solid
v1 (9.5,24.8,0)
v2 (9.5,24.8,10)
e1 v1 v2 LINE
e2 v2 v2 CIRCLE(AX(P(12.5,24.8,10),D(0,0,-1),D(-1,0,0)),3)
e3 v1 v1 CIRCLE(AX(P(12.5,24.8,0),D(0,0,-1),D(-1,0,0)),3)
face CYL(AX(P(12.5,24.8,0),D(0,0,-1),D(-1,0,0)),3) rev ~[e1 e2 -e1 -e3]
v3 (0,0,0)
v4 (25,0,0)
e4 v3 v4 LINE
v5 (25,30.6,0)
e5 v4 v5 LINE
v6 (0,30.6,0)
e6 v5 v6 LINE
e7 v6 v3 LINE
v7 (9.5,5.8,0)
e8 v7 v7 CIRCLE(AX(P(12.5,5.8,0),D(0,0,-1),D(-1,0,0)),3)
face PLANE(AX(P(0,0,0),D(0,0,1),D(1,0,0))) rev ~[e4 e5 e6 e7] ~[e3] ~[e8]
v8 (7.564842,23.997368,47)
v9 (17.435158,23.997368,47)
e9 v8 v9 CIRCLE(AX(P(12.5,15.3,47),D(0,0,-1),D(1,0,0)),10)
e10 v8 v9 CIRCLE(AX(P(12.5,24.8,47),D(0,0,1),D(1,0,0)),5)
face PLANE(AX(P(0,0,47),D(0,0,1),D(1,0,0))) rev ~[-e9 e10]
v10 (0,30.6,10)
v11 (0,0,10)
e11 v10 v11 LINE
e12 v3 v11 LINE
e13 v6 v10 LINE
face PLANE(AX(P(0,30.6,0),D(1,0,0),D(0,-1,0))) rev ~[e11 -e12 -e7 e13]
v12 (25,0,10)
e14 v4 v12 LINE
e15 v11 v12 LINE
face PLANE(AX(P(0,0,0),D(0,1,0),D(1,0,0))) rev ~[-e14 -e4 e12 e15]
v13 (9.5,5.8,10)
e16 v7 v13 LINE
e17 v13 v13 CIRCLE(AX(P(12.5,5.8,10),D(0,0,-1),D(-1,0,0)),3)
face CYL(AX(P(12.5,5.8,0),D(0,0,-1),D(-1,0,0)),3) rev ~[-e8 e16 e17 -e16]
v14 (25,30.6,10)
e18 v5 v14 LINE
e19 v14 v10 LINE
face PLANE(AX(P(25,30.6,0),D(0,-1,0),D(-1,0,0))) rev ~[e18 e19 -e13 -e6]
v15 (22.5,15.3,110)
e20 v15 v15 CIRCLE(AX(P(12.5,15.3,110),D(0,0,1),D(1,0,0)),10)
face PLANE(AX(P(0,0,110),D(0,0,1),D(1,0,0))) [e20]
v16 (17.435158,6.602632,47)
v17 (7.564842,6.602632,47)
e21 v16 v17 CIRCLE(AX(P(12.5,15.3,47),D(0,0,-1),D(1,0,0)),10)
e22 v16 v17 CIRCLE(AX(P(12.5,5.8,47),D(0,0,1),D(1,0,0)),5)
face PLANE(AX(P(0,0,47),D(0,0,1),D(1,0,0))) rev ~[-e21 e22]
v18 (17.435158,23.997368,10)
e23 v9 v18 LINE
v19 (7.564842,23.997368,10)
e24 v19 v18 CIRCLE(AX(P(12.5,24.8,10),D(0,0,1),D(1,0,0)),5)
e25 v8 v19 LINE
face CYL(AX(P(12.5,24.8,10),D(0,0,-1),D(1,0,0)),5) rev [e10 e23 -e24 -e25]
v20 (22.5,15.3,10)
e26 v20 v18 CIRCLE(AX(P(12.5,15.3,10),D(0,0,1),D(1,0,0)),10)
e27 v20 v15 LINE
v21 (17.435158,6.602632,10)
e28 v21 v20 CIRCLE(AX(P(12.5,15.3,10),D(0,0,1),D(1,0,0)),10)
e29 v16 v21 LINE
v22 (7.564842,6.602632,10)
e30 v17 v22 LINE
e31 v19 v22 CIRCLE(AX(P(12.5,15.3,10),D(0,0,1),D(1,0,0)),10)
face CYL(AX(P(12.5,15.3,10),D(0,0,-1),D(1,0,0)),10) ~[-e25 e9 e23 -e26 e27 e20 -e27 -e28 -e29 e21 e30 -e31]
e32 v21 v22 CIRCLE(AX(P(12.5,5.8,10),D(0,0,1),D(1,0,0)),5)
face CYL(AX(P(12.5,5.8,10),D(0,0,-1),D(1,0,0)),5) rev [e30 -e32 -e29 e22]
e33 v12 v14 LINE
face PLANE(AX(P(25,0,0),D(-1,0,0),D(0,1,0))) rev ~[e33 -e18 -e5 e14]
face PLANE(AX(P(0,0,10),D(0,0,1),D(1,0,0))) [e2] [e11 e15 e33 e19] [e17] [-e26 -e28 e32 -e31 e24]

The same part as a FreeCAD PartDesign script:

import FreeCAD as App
import Part
import Sketcher
Q = App.Units.Quantity


def add_polygon(sketch, points):
    """Adds a closed chain of lines whose ends are joined by coincident constraints."""
    first, n = sketch.GeometryCount, len(points)
    for a, b in zip(points, points[1:] + points[:1]):
        sketch.addGeometry(Part.LineSegment(App.Vector(*a, 0), App.Vector(*b, 0)), False)
    for i in range(n):
        sketch.addConstraint(Sketcher.Constraint("Coincident", first + i, 2, first + (i + 1) % n, 1))

doc = App.newDocument("Part")
body = doc.addObject("PartDesign::Body", "Body")

# Sketch on XY plane
sketch1 = doc.addObject("Sketcher::SketchObject", "Sketch")
body.addObject(sketch1)
sketch1.AttachmentSupport = (doc.XY_Plane, [""])
sketch1.MapMode = "FlatFace"
add_polygon(sketch1, [(0, 30.6), (0, 0), (25, 0), (25, 30.6)])  # lines 0-3
sketch1.addConstraint([
    Sketcher.Constraint("Vertical", 0),
    Sketcher.Constraint("Horizontal", 1),
    Sketcher.Constraint("Vertical", 2),
    Sketcher.Constraint("Horizontal", 3),
    Sketcher.Constraint("Coincident", 0, 2, -1, 1),
    Sketcher.Constraint("DistanceX", 1, 1, 1, 2, Q("25 mm")),
    Sketcher.Constraint("DistanceY", 0, 2, 0, 1, Q("30.6 mm")),
])
pad1 = doc.addObject("PartDesign::Pad", "Pad")
body.addObject(pad1)
pad1.Profile = sketch1
pad1.Length = 10

# Sketch on XY plane
sketch2 = doc.addObject("Sketcher::SketchObject", "Sketch001")
body.addObject(sketch2)
sketch2.AttachmentSupport = (doc.XY_Plane, [""])
sketch2.MapMode = "FlatFace"
sketch2.AttachmentOffset = App.Placement(App.Vector(0, 0, 10), App.Rotation())
sketch2.addGeometry(Part.Circle(App.Vector(12.5, 15.3, 0), App.Vector(0, 0, 1), 10), False)
sketch2.addConstraint([
    Sketcher.Constraint("Diameter", 0, Q("20 mm")),
    Sketcher.Constraint("DistanceX", -1, 1, 0, 3, Q("12.5 mm")),
    Sketcher.Constraint("DistanceY", -1, 1, 0, 3, Q("15.3 mm")),
])
pad2 = doc.addObject("PartDesign::Pad", "Pad001")
body.addObject(pad2)
pad2.Profile = sketch2
pad2.Length = 100

# Sketch on XY plane
sketch3 = doc.addObject("Sketcher::SketchObject", "Sketch002")
body.addObject(sketch3)
sketch3.AttachmentSupport = (doc.XY_Plane, [""])
sketch3.MapMode = "FlatFace"
sketch3.addGeometry([
    Part.Circle(App.Vector(12.5, 5.8, 0), App.Vector(0, 0, 1), 3),
    Part.Circle(App.Vector(12.5, 24.8, 0), App.Vector(0, 0, 1), 3),
], False)
sketch3.addConstraint([
    Sketcher.Constraint("Equal", 0, 1),
    Sketcher.Constraint("Vertical", 0, 3, 1, 3),
    Sketcher.Constraint("Diameter", 0, Q("6 mm")),
    Sketcher.Constraint("DistanceY", 0, 3, 1, 3, Q("19 mm")),
    Sketcher.Constraint("DistanceX", -1, 1, 0, 3, Q("12.5 mm")),
    Sketcher.Constraint("DistanceY", -1, 1, 0, 3, Q("5.8 mm")),
])
pocket1 = doc.addObject("PartDesign::Pocket", "Pocket")
body.addObject(pocket1)
pocket1.Profile = sketch3
pocket1.Length = 20
pocket1.Reversed = True

# Sketch on XY plane
sketch4 = doc.addObject("Sketcher::SketchObject", "Sketch003")
body.addObject(sketch4)
sketch4.AttachmentSupport = (doc.XY_Plane, [""])
sketch4.MapMode = "FlatFace"
sketch4.AttachmentOffset = App.Placement(App.Vector(0, 0, 10), App.Rotation())
sketch4.addGeometry([
    Part.Circle(App.Vector(12.5, 5.8, 0), App.Vector(0, 0, 1), 5),
    Part.Circle(App.Vector(12.5, 24.8, 0), App.Vector(0, 0, 1), 5),
], False)
sketch4.addConstraint([
    Sketcher.Constraint("Equal", 0, 1),
    Sketcher.Constraint("Vertical", 0, 3, 1, 3),
    Sketcher.Constraint("Diameter", 0, Q("10 mm")),
    Sketcher.Constraint("DistanceY", 0, 3, 1, 3, Q("19 mm")),
    Sketcher.Constraint("DistanceX", -1, 1, 0, 3, Q("12.5 mm")),
    Sketcher.Constraint("DistanceY", -1, 1, 0, 3, Q("5.8 mm")),
])
pocket2 = doc.addObject("PartDesign::Pocket", "Pocket001")
body.addObject(pocket2)
pocket2.Profile = sketch4
pocket2.Length = 37
pocket2.Reversed = True

doc.recompute()
